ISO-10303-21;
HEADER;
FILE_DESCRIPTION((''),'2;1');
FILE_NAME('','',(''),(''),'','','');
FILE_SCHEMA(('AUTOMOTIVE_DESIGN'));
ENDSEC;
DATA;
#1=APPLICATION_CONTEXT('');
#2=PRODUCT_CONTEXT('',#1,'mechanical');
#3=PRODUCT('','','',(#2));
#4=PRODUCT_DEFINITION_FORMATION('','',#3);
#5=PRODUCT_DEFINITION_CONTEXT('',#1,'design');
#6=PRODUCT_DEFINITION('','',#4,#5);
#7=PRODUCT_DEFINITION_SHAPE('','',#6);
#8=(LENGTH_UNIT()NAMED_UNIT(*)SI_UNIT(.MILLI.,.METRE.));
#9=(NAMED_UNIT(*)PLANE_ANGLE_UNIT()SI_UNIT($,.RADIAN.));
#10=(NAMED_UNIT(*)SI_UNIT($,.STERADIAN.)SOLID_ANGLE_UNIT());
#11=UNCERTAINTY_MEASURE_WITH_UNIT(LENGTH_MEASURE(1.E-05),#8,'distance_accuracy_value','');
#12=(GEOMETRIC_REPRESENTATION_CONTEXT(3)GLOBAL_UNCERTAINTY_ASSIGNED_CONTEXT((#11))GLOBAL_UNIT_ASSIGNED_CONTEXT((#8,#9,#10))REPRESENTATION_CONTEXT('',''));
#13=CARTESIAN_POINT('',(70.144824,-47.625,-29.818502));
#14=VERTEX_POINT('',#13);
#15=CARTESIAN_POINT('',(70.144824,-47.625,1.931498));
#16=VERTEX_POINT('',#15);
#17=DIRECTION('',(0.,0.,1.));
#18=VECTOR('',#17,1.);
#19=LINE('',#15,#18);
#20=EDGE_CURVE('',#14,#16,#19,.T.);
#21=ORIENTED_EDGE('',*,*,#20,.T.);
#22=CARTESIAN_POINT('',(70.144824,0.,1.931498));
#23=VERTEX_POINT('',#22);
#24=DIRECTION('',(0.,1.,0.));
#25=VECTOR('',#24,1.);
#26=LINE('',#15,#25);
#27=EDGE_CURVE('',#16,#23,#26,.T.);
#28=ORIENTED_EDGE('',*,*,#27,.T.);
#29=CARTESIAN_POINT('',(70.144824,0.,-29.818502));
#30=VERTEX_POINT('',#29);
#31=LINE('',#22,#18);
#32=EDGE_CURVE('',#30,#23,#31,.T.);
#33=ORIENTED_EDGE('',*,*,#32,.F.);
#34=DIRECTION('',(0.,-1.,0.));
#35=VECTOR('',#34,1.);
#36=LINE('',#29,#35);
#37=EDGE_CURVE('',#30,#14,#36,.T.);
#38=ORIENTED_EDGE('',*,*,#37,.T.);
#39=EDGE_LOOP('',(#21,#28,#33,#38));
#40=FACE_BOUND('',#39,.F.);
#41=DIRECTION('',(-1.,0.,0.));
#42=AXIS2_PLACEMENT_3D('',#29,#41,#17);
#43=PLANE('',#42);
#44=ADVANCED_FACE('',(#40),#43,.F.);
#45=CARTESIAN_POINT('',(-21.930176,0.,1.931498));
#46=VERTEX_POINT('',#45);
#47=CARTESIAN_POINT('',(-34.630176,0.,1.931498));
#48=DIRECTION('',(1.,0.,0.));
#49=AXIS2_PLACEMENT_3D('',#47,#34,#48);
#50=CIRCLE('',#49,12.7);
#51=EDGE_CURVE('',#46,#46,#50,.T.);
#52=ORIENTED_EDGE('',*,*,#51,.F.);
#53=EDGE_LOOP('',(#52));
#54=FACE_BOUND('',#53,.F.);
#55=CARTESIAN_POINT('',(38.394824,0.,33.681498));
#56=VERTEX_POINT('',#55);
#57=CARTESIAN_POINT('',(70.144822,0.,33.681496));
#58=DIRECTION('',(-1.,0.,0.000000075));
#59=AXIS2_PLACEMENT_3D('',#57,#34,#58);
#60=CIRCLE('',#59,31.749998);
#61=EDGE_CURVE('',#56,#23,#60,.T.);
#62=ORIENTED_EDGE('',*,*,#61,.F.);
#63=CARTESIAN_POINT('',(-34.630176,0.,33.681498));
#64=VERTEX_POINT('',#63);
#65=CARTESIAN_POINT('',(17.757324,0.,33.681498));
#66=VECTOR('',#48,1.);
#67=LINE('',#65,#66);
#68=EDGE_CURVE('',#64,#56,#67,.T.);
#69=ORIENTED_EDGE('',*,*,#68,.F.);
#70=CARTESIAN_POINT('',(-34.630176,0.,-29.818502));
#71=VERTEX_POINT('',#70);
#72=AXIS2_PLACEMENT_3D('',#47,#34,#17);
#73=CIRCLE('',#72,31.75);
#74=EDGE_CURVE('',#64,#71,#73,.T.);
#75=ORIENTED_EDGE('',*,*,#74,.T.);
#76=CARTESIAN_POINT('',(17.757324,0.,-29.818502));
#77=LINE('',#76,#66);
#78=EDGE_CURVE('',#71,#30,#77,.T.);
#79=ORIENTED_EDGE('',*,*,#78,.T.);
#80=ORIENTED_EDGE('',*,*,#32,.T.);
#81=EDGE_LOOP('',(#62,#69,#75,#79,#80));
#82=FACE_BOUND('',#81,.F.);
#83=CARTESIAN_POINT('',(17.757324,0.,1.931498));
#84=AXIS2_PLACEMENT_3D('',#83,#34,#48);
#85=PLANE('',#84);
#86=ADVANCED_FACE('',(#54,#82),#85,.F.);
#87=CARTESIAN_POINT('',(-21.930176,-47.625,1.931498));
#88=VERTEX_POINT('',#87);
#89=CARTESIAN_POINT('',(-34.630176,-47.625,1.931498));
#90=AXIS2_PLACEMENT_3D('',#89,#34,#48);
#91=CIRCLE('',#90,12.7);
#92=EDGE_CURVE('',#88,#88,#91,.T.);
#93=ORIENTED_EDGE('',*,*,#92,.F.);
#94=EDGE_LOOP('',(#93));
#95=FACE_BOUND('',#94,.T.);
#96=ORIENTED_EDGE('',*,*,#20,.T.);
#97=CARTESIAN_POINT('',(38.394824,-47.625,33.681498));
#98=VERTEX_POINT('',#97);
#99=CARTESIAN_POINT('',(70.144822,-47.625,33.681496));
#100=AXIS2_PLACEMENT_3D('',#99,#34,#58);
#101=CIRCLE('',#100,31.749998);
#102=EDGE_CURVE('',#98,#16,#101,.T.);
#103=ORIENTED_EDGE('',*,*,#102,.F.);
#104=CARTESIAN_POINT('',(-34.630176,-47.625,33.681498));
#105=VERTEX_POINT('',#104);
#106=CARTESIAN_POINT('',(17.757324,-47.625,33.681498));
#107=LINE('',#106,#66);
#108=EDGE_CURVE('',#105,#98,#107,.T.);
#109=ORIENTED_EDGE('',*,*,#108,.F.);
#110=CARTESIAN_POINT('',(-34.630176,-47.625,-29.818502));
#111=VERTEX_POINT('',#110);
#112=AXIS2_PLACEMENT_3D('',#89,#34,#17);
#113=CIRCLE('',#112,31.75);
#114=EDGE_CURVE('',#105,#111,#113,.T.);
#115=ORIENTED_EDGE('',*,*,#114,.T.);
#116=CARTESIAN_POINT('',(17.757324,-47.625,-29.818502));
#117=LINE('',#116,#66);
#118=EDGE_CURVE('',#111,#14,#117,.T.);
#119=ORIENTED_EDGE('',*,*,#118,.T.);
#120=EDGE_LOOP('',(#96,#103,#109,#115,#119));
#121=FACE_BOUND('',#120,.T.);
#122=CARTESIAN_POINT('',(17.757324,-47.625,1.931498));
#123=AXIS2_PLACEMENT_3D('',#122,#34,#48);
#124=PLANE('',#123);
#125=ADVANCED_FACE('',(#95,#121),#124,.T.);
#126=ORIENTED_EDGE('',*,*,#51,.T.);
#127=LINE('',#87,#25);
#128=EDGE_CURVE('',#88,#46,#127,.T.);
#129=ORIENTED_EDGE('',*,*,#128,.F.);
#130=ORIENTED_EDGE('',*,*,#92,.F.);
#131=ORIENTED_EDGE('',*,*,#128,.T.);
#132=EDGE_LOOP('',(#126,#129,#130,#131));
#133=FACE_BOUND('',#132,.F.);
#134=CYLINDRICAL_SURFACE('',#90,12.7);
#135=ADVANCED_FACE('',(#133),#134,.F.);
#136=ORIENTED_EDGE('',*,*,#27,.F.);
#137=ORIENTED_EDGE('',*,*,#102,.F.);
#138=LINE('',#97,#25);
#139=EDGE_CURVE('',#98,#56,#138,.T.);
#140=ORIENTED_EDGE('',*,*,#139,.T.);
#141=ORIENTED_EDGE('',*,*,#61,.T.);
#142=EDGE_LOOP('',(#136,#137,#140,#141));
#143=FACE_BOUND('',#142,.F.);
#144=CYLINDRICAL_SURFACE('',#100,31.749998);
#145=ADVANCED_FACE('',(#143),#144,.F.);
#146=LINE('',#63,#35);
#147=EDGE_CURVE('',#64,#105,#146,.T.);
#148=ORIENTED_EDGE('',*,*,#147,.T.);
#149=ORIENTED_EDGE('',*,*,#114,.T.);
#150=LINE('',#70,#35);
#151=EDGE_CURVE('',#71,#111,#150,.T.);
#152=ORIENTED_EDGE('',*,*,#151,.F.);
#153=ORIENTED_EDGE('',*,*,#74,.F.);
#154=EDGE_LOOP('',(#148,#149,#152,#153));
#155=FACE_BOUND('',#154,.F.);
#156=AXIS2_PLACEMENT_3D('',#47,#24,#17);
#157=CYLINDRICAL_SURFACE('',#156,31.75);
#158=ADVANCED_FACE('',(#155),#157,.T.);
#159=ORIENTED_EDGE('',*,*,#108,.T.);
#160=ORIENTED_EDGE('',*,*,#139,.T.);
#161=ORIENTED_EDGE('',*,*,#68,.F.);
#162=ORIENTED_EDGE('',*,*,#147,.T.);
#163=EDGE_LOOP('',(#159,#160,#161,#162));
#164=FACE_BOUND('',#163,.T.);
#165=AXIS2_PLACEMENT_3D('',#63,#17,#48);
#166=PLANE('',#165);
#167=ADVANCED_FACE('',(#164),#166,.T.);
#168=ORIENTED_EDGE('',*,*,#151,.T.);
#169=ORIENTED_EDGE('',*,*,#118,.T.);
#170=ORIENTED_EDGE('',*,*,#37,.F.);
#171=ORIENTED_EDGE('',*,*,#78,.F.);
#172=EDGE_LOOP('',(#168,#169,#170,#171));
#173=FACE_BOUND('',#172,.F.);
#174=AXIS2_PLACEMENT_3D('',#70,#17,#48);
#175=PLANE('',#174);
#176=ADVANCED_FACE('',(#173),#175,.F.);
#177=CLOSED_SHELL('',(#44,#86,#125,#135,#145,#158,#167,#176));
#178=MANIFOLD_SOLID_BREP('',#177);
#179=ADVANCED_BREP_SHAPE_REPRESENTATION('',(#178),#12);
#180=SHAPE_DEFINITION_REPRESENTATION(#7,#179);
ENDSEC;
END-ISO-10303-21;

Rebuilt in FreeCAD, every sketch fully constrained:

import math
import FreeCAD as App
import Part
import Sketcher
from FreeCAD import Vector
Q = App.Units.Quantity

doc = App.newDocument("Part")
params = doc.addObject("Spreadsheet::Sheet", "Params")
for row, (alias, value) in enumerate([
    ("sketch1_radius", "1.25 in"),
    ("sketch1_width", "4.125 in"),
    ("pad1_length", "1.875 in"),
    ("sketch2_diameter", "1 in"),
    ("pocket1_length", "1.875 in"),
    ("sketch3_radius", "1.2499999 in"),
    ("pocket2_length", "1.875 in"),
], start=1):
    params.set(f"A{row}", alias)
    params.set(f"B{row}", "=" + value)
    params.setAlias(f"B{row}", alias)

body = doc.addObject("PartDesign::Body", "Body")

sketch1 = body.newObject("Sketcher::SketchObject", "Sketch")
sketch1.AttachmentSupport = (doc.getObject("XZ_Plane"), [""])
sketch1.MapMode = "FlatFace"
sketch1.addGeometry(Part.LineSegment(Vector(-35, -30, 0), Vector(70, -30, 0)), False)
sketch1.addGeometry(Part.LineSegment(Vector(70, -30, 0), Vector(70, 34, 0)), False)
sketch1.addGeometry(Part.LineSegment(Vector(70, 34, 0), Vector(-35, 34, 0)), False)
sketch1.addGeometry(Part.ArcOfCircle(Part.Circle(Vector(-35, 2, 0), Vector(0, 0, 1), 32), math.radians(90), math.radians(270)), False)
sketch1.addConstraint(Sketcher.Constraint("Coincident", 0, 2, 1, 1))
sketch1.addConstraint(Sketcher.Constraint("Coincident", 1, 2, 2, 1))
sketch1.addConstraint(Sketcher.Constraint("Tangent", 2, 2, 3, 1))
sketch1.addConstraint(Sketcher.Constraint("Tangent", 3, 2, 0, 1))
sketch1.addConstraint(Sketcher.Constraint("Horizontal", 0))
sketch1.addConstraint(Sketcher.Constraint("Vertical", 1))
sketch1.addConstraint(Sketcher.Constraint("Horizontal", 2))
sketch1.addConstraint(Sketcher.Constraint("Radius", 3, Q("1.25 in")))
sketch1.addConstraint(Sketcher.Constraint("DistanceX", 0, 1, 0, 2, Q("4.125 in")))
sketch1.addConstraint(Sketcher.Constraint("DistanceY", 0, 2, -1, 1, Q("29.818502 mm")))
sketch1.addConstraint(Sketcher.Constraint("DistanceX", 3, 3, -1, 1, Q("34.630176 mm")))
sketch1.setExpression("Constraints[7]", "Params.sketch1_radius")
sketch1.setExpression("Constraints[8]", "Params.sketch1_width")
pad1 = body.newObject("PartDesign::Pad", "Pad")
pad1.Profile = sketch1
pad1.setExpression("Length", "Params.pad1_length")

sketch2 = body.newObject("Sketcher::SketchObject", "Sketch001")
sketch2.AttachmentSupport = (doc.getObject("XZ_Plane"), [""])
sketch2.MapMode = "FlatFace"
sketch2.AttachmentOffset = App.Placement(Vector(0, 0, 1.875 * 25.4), App.Rotation())
sketch2.addGeometry(Part.Circle(Vector(-35, 2, 0), Vector(0, 0, 1), 13), False)
sketch2.addConstraint(Sketcher.Constraint("Diameter", 0, Q("1 in")))
sketch2.addConstraint(Sketcher.Constraint("DistanceX", 0, 3, -1, 1, Q("34.630176 mm")))
sketch2.addConstraint(Sketcher.Constraint("DistanceY", -1, 1, 0, 3, Q("1.931498 mm")))
sketch2.setExpression("Constraints[0]", "Params.sketch2_diameter")
pocket1 = body.newObject("PartDesign::Pocket", "Pocket")
pocket1.Profile = sketch2
pocket1.setExpression("Length", "Params.pocket1_length")

sketch3 = body.newObject("Sketcher::SketchObject", "Sketch002")
sketch3.AttachmentSupport = (doc.getObject("XZ_Plane"), [""])
sketch3.MapMode = "FlatFace"
sketch3.AttachmentOffset = App.Placement(Vector(0, 0, 1.875 * 25.4), App.Rotation())
sketch3.addGeometry(Part.LineSegment(Vector(70, 34, 0), Vector(38, 34, 0)), False)
sketch3.addGeometry(Part.ArcOfCircle(Part.Circle(Vector(70, 34, 0), Vector(0, 0, 1), 32), math.radians(180), math.radians(270)), False)
sketch3.addGeometry(Part.LineSegment(Vector(70, 2, 0), Vector(70, 34, 0)), False)
sketch3.addConstraint(Sketcher.Constraint("Coincident", 0, 2, 1, 1))
sketch3.addConstraint(Sketcher.Constraint("Coincident", 1, 2, 2, 1))
sketch3.addConstraint(Sketcher.Constraint("Coincident", 2, 2, 0, 1))
sketch3.addConstraint(Sketcher.Constraint("Horizontal", 0))
sketch3.addConstraint(Sketcher.Constraint("Vertical", 2))
sketch3.addConstraint(Sketcher.Constraint("Coincident", 2, 2, 1, 3))
sketch3.addConstraint(Sketcher.Constraint("Radius", 1, Q("1.2499999 in")))
sketch3.addConstraint(Sketcher.Constraint("DistanceY", -1, 1, 1, 2, Q("1.931498 mm")))
sketch3.addConstraint(Sketcher.Constraint("DistanceX", -1, 1, 1, 3, Q("70.144822 mm")))
sketch3.setExpression("Constraints[6]", "Params.sketch3_radius")
pocket2 = body.newObject("PartDesign::Pocket", "Pocket001")
pocket2.Profile = sketch3
pocket2.setExpression("Length", "Params.pocket2_length")

doc.recompute()
